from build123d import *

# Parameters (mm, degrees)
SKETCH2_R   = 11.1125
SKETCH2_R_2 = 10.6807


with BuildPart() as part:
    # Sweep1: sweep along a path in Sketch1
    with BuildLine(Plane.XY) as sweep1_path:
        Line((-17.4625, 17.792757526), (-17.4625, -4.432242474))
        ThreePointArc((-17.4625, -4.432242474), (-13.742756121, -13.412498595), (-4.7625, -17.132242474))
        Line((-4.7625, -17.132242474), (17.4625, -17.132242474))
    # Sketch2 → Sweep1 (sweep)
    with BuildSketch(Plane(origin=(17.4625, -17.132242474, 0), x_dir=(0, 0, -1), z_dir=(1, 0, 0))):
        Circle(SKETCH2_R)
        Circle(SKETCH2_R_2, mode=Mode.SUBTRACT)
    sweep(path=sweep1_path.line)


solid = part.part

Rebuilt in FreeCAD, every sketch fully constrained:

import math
import FreeCAD as App
import Part
import Sketcher
from FreeCAD import Vector
Q = App.Units.Quantity

doc = App.newDocument("Part")
body = doc.addObject("PartDesign::Body", "Body")

sketch1 = body.newObject("Sketcher::SketchObject", "Sketch")
sketch1.AttachmentSupport = (doc.getObject("YZ_Plane"), [""])
sketch1.MapMode = "FlatFace"
sketch1.AttachmentOffset = App.Placement(Vector(0, 0, 0.6875 * 25.4), App.Rotation())
sketch1.addGeometry(Part.Circle(Vector(-17, 0, 0), Vector(0, 0, 1), 11), False)
sketch1.addGeometry(Part.Circle(Vector(-17, 0, 0), Vector(0, 0, 1), 11), False)
sketch1.addConstraint(Sketcher.Constraint("Coincident", 1, 3, 0, 3))
sketch1.addConstraint(Sketcher.Constraint("PointOnObject", 0, 3, -1))
sketch1.addConstraint(Sketcher.Constraint("Diameter", 0, Q("0.875 in")))
sketch1.addConstraint(Sketcher.Constraint("Diameter", 1, Q("0.841 in")))
sketch1.addConstraint(Sketcher.Constraint("DistanceX", 0, 3, -1, 1, 17.132242))

sketch2 = body.newObject("Sketcher::SketchObject", "Sketch001")
sketch2.AttachmentSupport = (doc.getObject("XY_Plane"), [""])
sketch2.MapMode = "FlatFace"
sketch2.addGeometry(Part.LineSegment(Vector(-17, 18, 0), Vector(-17, -4, 0)), False)
sketch2.addGeometry(Part.ArcOfCircle(Part.Circle(Vector(-5, -4, 0), Vector(0, 0, 1), 13), math.radians(180), math.radians(270)), False)
sketch2.addGeometry(Part.LineSegment(Vector(-5, -17, 0), Vector(17, -17, 0)), False)
sketch2.addConstraint(Sketcher.Constraint("Tangent", 0, 2, 1, 1))
sketch2.addConstraint(Sketcher.Constraint("Tangent", 1, 2, 2, 1))
sketch2.addConstraint(Sketcher.Constraint("Vertical", 0))
sketch2.addConstraint(Sketcher.Constraint("Horizontal", 2))
sketch2.addConstraint(Sketcher.Constraint("Equal", 2, 0))
sketch2.addConstraint(Sketcher.Constraint("Radius", 1, Q("0.5 in")))
sketch2.addConstraint(Sketcher.Constraint("DistanceX", 2, 1, 2, 2, Q("0.875 in")))
sketch2.addConstraint(Sketcher.Constraint("DistanceX", 1, 3, -1, 1, Q("0.1875 in")))
sketch2.addConstraint(Sketcher.Constraint("DistanceY", 1, 3, -1, 1, 4.432242))
doc.recompute()

additivepipe = body.newObject("PartDesign::AdditivePipe", "AdditivePipe")
additivepipe.Profile = sketch1
additivepipe.Spine = (sketch2, ["Edge1", "Edge2", "Edge3"])

doc.recompute()
